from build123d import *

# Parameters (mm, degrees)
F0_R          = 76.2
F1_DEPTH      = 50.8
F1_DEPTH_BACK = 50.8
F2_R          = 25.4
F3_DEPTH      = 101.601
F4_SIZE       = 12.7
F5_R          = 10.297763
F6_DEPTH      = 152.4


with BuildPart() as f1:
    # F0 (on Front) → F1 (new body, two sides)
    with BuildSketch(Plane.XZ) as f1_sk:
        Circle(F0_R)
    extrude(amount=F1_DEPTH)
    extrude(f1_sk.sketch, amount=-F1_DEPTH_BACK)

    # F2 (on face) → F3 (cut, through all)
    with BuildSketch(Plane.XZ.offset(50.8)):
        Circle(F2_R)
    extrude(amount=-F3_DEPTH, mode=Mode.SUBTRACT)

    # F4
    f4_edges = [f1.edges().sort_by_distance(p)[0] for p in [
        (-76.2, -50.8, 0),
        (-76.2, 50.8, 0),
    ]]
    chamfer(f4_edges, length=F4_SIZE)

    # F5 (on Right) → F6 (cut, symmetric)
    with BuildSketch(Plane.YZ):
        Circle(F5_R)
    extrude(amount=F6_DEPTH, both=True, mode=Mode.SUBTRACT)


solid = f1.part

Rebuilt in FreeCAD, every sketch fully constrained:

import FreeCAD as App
import Part
import Sketcher
Q = App.Units.Quantity


def edges_at(feature, points):
    """Names of the edges that pass closest to the given points."""
    edges = feature.Shape.Edges
    near = lambda p: min(range(len(edges)), key=lambda i: edges[i].distToShape(Part.Vertex(*p))[0])
    return sorted({f"Edge{near(p) + 1}" for p in points})

doc = App.newDocument("Part")
body = doc.addObject("PartDesign::Body", "Body")

# Sketch on XZ plane
sketch1 = body.newObject("Sketcher::SketchObject", "Sketch")
sketch1.AttachmentSupport = (doc.getObject("XZ_Plane"), [""])
sketch1.MapMode = "FlatFace"
sketch1.addGeometry(Part.Circle(App.Vector(0, 0, 0), App.Vector(0, 0, 1), 76.2), False)
sketch1.addConstraint([
    Sketcher.Constraint("Coincident", 0, 3, -1, 1),
    Sketcher.Constraint("Diameter", 0, Q("6 in")),
])
pad1 = body.newObject("PartDesign::Pad", "Pad")
pad1.Profile = sketch1
pad1.Type = "TwoLengths"
pad1.Length = Q("2 in")
pad1.Length2 = Q("2 in")

# Sketch on XZ plane
sketch2 = body.newObject("Sketcher::SketchObject", "Sketch001")
sketch2.AttachmentSupport = (doc.getObject("XZ_Plane"), [""])
sketch2.MapMode = "FlatFace"
sketch2.AttachmentOffset = App.Placement(App.Vector(0, 0, 2 * 25.4), App.Rotation())
sketch2.addGeometry(Part.Circle(App.Vector(0, 0, 0), App.Vector(0, 0, 1), 25.4), False)
sketch2.addConstraint([
    Sketcher.Constraint("Coincident", 0, 3, -1, 1),
    Sketcher.Constraint("Diameter", 0, Q("2 in")),
])
pocket1 = body.newObject("PartDesign::Pocket", "Pocket")
pocket1.Profile = sketch2
pocket1.Type = "ThroughAll"
doc.recompute()

chamfer = body.newObject("PartDesign::Chamfer", "Chamfer")
chamfer.Base = (pocket1, edges_at(pocket1, [(-76.2, -50.8, 0), (-76.2, 50.8, 0)]))
chamfer.Size = Q("0.5 in")

# Sketch on YZ plane
sketch3 = body.newObject("Sketcher::SketchObject", "Sketch002")
sketch3.AttachmentSupport = (doc.getObject("YZ_Plane"), [""])
sketch3.MapMode = "FlatFace"
sketch3.addGeometry(Part.Circle(App.Vector(0, 0, 0), App.Vector(0, 0, 1), 10.297763), False)
sketch3.addConstraint([
    Sketcher.Constraint("Coincident", 0, 3, -1, 1),
    Sketcher.Constraint("Diameter", 0, Q("20.595526 mm")),
])
pocket2 = body.newObject("PartDesign::Pocket", "Pocket001")
pocket2.Profile = sketch3
pocket2.Length = Q("12 in")
pocket2.Midplane = True

doc.recompute()
